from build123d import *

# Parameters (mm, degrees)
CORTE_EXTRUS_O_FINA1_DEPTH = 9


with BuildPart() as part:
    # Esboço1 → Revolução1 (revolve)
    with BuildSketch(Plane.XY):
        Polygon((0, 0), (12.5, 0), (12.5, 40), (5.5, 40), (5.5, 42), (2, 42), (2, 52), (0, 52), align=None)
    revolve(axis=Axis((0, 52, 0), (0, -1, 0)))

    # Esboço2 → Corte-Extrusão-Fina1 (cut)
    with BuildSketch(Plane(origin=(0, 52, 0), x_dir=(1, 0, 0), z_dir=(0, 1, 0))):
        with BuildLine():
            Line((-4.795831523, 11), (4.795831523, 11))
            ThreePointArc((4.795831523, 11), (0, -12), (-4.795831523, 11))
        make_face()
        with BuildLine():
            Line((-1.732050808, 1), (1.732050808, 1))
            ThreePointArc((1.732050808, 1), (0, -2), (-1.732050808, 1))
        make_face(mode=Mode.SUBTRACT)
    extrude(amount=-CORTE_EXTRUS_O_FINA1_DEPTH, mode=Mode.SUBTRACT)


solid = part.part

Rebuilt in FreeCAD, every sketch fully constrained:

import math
import FreeCAD as App
import Part
import Sketcher
from FreeCAD import Vector


def add_polygon(sketch, points):
    """Adds a closed chain of lines whose ends are joined by coincident constraints."""
    first, n = sketch.GeometryCount, len(points)
    for a, b in zip(points, points[1:] + points[:1]):
        sketch.addGeometry(Part.LineSegment(App.Vector(*a, 0), App.Vector(*b, 0)), False)
    for i in range(n):
        sketch.addConstraint(Sketcher.Constraint("Coincident", first + i, 2, first + (i + 1) % n, 1))

doc = App.newDocument("Part")
body = doc.addObject("PartDesign::Body", "Body")

# Sketch on XY plane
sketch1 = body.newObject("Sketcher::SketchObject", "Sketch")
sketch1.AttachmentSupport = (doc.getObject("XY_Plane"), [""])
sketch1.MapMode = "FlatFace"
add_polygon(sketch1, [(0, 0), (12.5, 0), (12.5, 40), (5.5, 40), (5.5, 42), (2, 42), (2, 52), (0, 52)])  # lines 0-7
sketch1.addConstraint(Sketcher.Constraint("Horizontal", 0))
sketch1.addConstraint(Sketcher.Constraint("Vertical", 1))
sketch1.addConstraint(Sketcher.Constraint("Horizontal", 2))
sketch1.addConstraint(Sketcher.Constraint("Vertical", 3))
sketch1.addConstraint(Sketcher.Constraint("Horizontal", 4))
sketch1.addConstraint(Sketcher.Constraint("Vertical", 5))
sketch1.addConstraint(Sketcher.Constraint("Horizontal", 6))
sketch1.addConstraint(Sketcher.Constraint("Vertical", 7))
sketch1.addConstraint(Sketcher.Constraint("Coincident", 7, 2, -1, 1))
sketch1.addConstraint(Sketcher.Constraint("Equal", 6, 3))
sketch1.addConstraint(Sketcher.Constraint("DistanceX", 2, 2, 2, 1, 7.0))
sketch1.addConstraint(Sketcher.Constraint("DistanceX", 6, 2, 6, 1, 2.0))
sketch1.addConstraint(Sketcher.Constraint("DistanceY", 1, 1, 1, 2, 40.0))
sketch1.addConstraint(Sketcher.Constraint("DistanceY", 5, 1, 5, 2, 10.0))
sketch1.addConstraint(Sketcher.Constraint("DistanceX", 0, 1, 0, 2, 12.5))
revolution = body.newObject("PartDesign::Revolution", "Revolution")
revolution.Profile = sketch1
revolution.ReferenceAxis = (sketch1, ["V_Axis"])
revolution.Angle = 360

# Sketch on XZ plane
sketch2 = body.newObject("Sketcher::SketchObject", "Sketch001")
sketch2.AttachmentSupport = (doc.getObject("XZ_Plane"), [""])
sketch2.MapMode = "FlatFace"
sketch2.AttachmentOffset = App.Placement(Vector(0, 0, -52), App.Rotation())
sketch2.addGeometry(Part.LineSegment(Vector(4.8, -11, 0), Vector(-4.8, -11, 0)), False)
sketch2.addGeometry(Part.ArcOfCircle(Part.Circle(Vector(0, 0, 0), Vector(0, 0, 1), 12), math.radians(-66), math.radians(246)), False)
sketch2.addGeometry(Part.LineSegment(Vector(-1.7, -1, 0), Vector(1.7, -1, 0)), False)
sketch2.addGeometry(Part.ArcOfCircle(Part.Circle(Vector(0, 0, 0), Vector(0, 0, 1), 2), math.radians(-30), math.radians(210)), False)
sketch2.addConstraint(Sketcher.Constraint("Coincident", 0, 1, 1, 1))
sketch2.addConstraint(Sketcher.Constraint("Coincident", 1, 2, 0, 2))
sketch2.addConstraint(Sketcher.Constraint("Coincident", 2, 1, 3, 2))
sketch2.addConstraint(Sketcher.Constraint("Coincident", 3, 1, 2, 2))
sketch2.addConstraint(Sketcher.Constraint("Horizontal", 0))
sketch2.addConstraint(Sketcher.Constraint("Horizontal", 2))
sketch2.addConstraint(Sketcher.Constraint("Coincident", 1, 3, -1, 1))
sketch2.addConstraint(Sketcher.Constraint("Coincident", 3, 3, -1, 1))
sketch2.addConstraint(Sketcher.Constraint("Radius", 1, 12.0))
sketch2.addConstraint(Sketcher.Constraint("Radius", 3, 2.0))
sketch2.addConstraint(Sketcher.Constraint("DistanceY", 0, 1, -1, 1, 11.0))
sketch2.addConstraint(Sketcher.Constraint("DistanceY", 2, 1, -1, 1, 1.0))
pocket1 = body.newObject("PartDesign::Pocket", "Pocket")
pocket1.Profile = sketch2
pocket1.Length = 9
pocket1.Reversed = True

doc.recompute()
